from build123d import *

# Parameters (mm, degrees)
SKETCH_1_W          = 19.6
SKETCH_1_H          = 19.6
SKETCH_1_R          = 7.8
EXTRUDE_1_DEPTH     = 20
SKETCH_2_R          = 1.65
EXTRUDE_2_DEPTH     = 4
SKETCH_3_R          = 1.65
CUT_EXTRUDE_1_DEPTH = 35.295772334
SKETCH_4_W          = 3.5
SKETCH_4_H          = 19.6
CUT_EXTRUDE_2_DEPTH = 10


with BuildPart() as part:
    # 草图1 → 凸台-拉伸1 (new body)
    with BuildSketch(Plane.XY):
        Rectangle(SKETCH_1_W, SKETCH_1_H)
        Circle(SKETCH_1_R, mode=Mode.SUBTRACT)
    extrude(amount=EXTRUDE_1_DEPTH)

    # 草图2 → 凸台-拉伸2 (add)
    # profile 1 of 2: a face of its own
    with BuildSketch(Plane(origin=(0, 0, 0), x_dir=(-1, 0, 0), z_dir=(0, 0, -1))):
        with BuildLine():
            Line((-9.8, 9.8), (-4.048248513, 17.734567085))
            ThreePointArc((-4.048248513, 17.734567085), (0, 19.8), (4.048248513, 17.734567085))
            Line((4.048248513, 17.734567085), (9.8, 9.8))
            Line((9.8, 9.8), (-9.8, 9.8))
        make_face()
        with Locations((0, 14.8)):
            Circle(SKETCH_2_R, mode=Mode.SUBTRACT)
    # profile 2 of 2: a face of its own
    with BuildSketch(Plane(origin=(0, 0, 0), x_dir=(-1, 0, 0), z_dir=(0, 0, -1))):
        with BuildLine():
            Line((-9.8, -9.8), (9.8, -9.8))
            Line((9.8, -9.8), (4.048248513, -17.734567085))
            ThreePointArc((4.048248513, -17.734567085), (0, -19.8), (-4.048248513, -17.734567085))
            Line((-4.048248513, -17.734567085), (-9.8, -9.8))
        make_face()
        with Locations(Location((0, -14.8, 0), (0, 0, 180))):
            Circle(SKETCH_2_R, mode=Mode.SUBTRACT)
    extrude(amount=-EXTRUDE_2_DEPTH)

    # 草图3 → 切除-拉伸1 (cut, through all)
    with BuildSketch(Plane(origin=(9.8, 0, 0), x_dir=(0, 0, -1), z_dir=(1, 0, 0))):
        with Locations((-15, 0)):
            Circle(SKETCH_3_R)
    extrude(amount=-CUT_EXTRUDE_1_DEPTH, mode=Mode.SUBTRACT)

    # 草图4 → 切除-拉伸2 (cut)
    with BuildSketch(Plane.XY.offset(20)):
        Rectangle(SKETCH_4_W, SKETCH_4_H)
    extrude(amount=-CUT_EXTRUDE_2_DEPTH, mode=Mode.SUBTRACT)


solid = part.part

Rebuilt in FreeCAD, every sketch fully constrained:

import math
import FreeCAD as App
import Part
import Sketcher
Q = App.Units.Quantity


def add_polygon(sketch, points):
    """Adds a closed chain of lines whose ends are joined by coincident constraints."""
    first, n = sketch.GeometryCount, len(points)
    for a, b in zip(points, points[1:] + points[:1]):
        sketch.addGeometry(Part.LineSegment(App.Vector(*a, 0), App.Vector(*b, 0)), False)
    for i in range(n):
        sketch.addConstraint(Sketcher.Constraint("Coincident", first + i, 2, first + (i + 1) % n, 1))

doc = App.newDocument("Part")
params = doc.addObject("Spreadsheet::Sheet", "Params")
for row, (alias, value) in enumerate([
    ("sketch1_diameter", "15.6 mm"),
    ("sketch1_width", "19.6 mm"),
    ("pad1_length", "20 mm"),
    ("sketch2_radius", "5 mm"),
    ("sketch2_diameter", "3.3 mm"),
    ("sketch2_width", "19.6 mm"),
    ("pad2_length", "4 mm"),
    ("sketch3_diameter", "3.3 mm"),
    ("sketch4_width", "3.5 mm"),
    ("sketch4_height", "19.6 mm"),
    ("pocket2_length", "10 mm"),
], start=1):
    params.set(f"A{row}", alias)
    params.set(f"B{row}", "=" + value)
    params.setAlias(f"B{row}", alias)

body = doc.addObject("PartDesign::Body", "Body")

# Sketch on XY plane
sketch1 = body.newObject("Sketcher::SketchObject", "Sketch")
sketch1.AttachmentSupport = (doc.getObject("XY_Plane"), [""])
sketch1.MapMode = "FlatFace"
add_polygon(sketch1, [(-10, 10), (-10, -10), (10, -10), (10, 10)])  # lines 0-3
sketch1.addGeometry(Part.Circle(App.Vector(0, 0, 0), App.Vector(0, 0, 1), 8), False)  # 4
sketch1.addConstraint([
    Sketcher.Constraint("Vertical", 0),
    Sketcher.Constraint("Horizontal", 1),
    Sketcher.Constraint("Vertical", 2),
    Sketcher.Constraint("Horizontal", 3),
    Sketcher.Constraint("Coincident", 4, 3, -1, 1),
    Sketcher.Constraint("Symmetric", 0, 2, 2, 2, -1, 1),
    Sketcher.Constraint("Equal", 3, 0),
    Sketcher.Constraint("Diameter", 4, Q("15.6 mm")),
    Sketcher.Constraint("DistanceX", 1, 1, 1, 2, Q("19.6 mm")),
])
sketch1.setExpression("Constraints[11]", "Params.sketch1_diameter")
sketch1.setExpression("Constraints[12]", "Params.sketch1_width")
pad1 = body.newObject("PartDesign::Pad", "Pad")
pad1.Profile = sketch1
pad1.setExpression("Length", "Params.pad1_length")

# Sketch on XY plane
sketch2 = body.newObject("Sketcher::SketchObject", "Sketch001")
sketch2.AttachmentSupport = (doc.getObject("XY_Plane"), [""])
sketch2.MapMode = "FlatFace"
sketch2.addGeometry([
    Part.LineSegment(App.Vector(4, 17.7, 0), App.Vector(9.8, 9.8, 0)),  # 0
    Part.LineSegment(App.Vector(9.8, 9.8, 0), App.Vector(-9.8, 9.8, 0)),  # 1
    Part.LineSegment(App.Vector(-9.8, 9.8, 0), App.Vector(-4, 17.7, 0)),  # 2
    Part.ArcOfCircle(Part.Circle(App.Vector(0, 14.8, 0), App.Vector(0, 0, 1), 5), math.radians(36), math.radians(144)),  # 3
    Part.Circle(App.Vector(0, 14.8, 0), App.Vector(0, 0, 1), 1.6),  # 4
    Part.LineSegment(App.Vector(-9.8, -9.8, 0), App.Vector(9.8, -9.8, 0)),  # 5
    Part.LineSegment(App.Vector(9.8, -9.8, 0), App.Vector(4, -17.7, 0)),  # 6
    Part.ArcOfCircle(Part.Circle(App.Vector(0, -14.8, 0), App.Vector(0, 0, 1), 5), math.radians(-144), math.radians(-36)),  # 7
    Part.LineSegment(App.Vector(-4, -17.7, 0), App.Vector(-9.8, -9.8, 0)),  # 8
    Part.Circle(App.Vector(0, -14.8, 0), App.Vector(0, 0, 1), 1.6),  # 9
], False)
sketch2.addConstraint([
    Sketcher.Constraint("Coincident", 0, 2, 1, 1),
    Sketcher.Constraint("Coincident", 1, 2, 2, 1),
    Sketcher.Constraint("Tangent", 2, 2, 3, 2),
    Sketcher.Constraint("Tangent", 3, 1, 0, 1),
    Sketcher.Constraint("Coincident", 5, 2, 6, 1),
    Sketcher.Constraint("Tangent", 6, 2, 7, 2),
    Sketcher.Constraint("Tangent", 7, 1, 8, 1),
    Sketcher.Constraint("Coincident", 8, 2, 5, 1),
    Sketcher.Constraint("Horizontal", 1),
    Sketcher.Constraint("Horizontal", 5),
    Sketcher.Constraint("Coincident", 4, 3, 3, 3),
    Sketcher.Constraint("Coincident", 9, 3, 7, 3),
    Sketcher.Constraint("Equal", 3, 7),
    Sketcher.Constraint("Equal", 4, 9),
    Sketcher.Constraint("Symmetric", 3, 3, 7, 3, -1, 1),
    Sketcher.Constraint("Symmetric", 1, 2, 5, 2, -1, 1),
    Sketcher.Constraint("Symmetric", 2, 2, 3, 1, -2),
    Sketcher.Constraint("Parallel", 0, 8),
    Sketcher.Constraint("Radius", 3, Q("5 mm")),
    Sketcher.Constraint("Diameter", 4, Q("3.3 mm")),
    Sketcher.Constraint("DistanceX", 1, 2, 1, 1, Q("19.6 mm")),
    Sketcher.Constraint("DistanceY", 0, 2, 3, 3, Q("5 mm")),
    Sketcher.Constraint("DistanceY", -1, 1, 3, 3, Q("14.8 mm")),
])
sketch2.setExpression("Constraints[18]", "Params.sketch2_radius")
sketch2.setExpression("Constraints[19]", "Params.sketch2_diameter")
sketch2.setExpression("Constraints[20]", "Params.sketch2_width")
pad2 = body.newObject("PartDesign::Pad", "Pad001")
pad2.Profile = sketch2
pad2.setExpression("Length", "Params.pad2_length")

# Sketch on YZ plane
sketch3 = body.newObject("Sketcher::SketchObject", "Sketch002")
sketch3.AttachmentSupport = (doc.getObject("YZ_Plane"), [""])
sketch3.MapMode = "FlatFace"
sketch3.AttachmentOffset = App.Placement(App.Vector(0, 0, 9.8), App.Rotation())
sketch3.addGeometry(Part.Circle(App.Vector(0, 15, 0), App.Vector(0, 0, 1), 1.6), False)
sketch3.addConstraint([
    Sketcher.Constraint("PointOnObject", 0, 3, -2),
    Sketcher.Constraint("Diameter", 0, Q("3.3 mm")),
    Sketcher.Constraint("DistanceY", -1, 1, 0, 3, Q("15 mm")),
])
sketch3.setExpression("Constraints[1]", "Params.sketch3_diameter")
pocket1 = body.newObject("PartDesign::Pocket", "Pocket")
pocket1.Profile = sketch3
pocket1.Type = "ThroughAll"

# Sketch on XY plane
sketch4 = body.newObject("Sketcher::SketchObject", "Sketch003")
sketch4.AttachmentSupport = (doc.getObject("XY_Plane"), [""])
sketch4.MapMode = "FlatFace"
sketch4.AttachmentOffset = App.Placement(App.Vector(0, 0, 20), App.Rotation())
add_polygon(sketch4, [(-1.8, 9.8), (-1.8, -9.8), (1.8, -9.8), (1.8, 9.8)])  # lines 0-3
sketch4.addConstraint([
    Sketcher.Constraint("Vertical", 0),
    Sketcher.Constraint("Horizontal", 1),
    Sketcher.Constraint("Vertical", 2),
    Sketcher.Constraint("Horizontal", 3),
    Sketcher.Constraint("Symmetric", 0, 2, 2, 2, -1, 1),
    Sketcher.Constraint("DistanceX", 1, 1, 1, 2, Q("3.5 mm")),
    Sketcher.Constraint("DistanceY", 0, 2, 0, 1, Q("19.6 mm")),
])
sketch4.setExpression("Constraints[9]", "Params.sketch4_width")
sketch4.setExpression("Constraints[10]", "Params.sketch4_height")
pocket2 = body.newObject("PartDesign::Pocket", "Pocket001")
pocket2.Profile = sketch4
pocket2.setExpression("Length", "Params.pocket2_length")

doc.recompute()
